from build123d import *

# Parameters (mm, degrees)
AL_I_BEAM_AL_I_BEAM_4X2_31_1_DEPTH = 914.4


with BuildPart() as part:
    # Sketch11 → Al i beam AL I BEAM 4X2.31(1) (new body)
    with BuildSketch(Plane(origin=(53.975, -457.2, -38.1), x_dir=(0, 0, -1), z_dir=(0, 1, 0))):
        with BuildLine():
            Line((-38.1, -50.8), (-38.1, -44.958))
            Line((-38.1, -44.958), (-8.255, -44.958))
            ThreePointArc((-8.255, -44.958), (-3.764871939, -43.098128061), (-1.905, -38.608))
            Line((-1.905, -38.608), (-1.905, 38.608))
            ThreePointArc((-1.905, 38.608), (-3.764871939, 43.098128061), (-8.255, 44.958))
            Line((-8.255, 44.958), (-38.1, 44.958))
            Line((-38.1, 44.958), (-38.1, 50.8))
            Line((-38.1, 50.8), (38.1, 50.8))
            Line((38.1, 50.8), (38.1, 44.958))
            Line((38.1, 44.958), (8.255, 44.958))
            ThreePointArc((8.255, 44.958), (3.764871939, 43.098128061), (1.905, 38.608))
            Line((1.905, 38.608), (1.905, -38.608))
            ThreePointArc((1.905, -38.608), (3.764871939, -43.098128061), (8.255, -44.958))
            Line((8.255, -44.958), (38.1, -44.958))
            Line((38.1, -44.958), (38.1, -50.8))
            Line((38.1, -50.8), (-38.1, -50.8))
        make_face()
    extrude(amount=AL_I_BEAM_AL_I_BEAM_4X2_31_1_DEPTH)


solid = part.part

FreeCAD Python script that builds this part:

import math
import FreeCAD as App
import Part
import Sketcher

V = App.Vector
Q = App.Units.Quantity

doc = App.newDocument("Part")
params = doc.addObject("Spreadsheet::Sheet", "Params")
for row, (alias, value) in enumerate([
    ("sketch1_height", "3 in"),
    ("sketch1_radius", "0.25 in"),
    ("sketch1_width", "0.23 in"),
    ("sketch1_width2", "3.04 in"),
    ("pad1_length", "36 in"),
], start=1):
    params.set(f"A{row}", alias)
    params.set(f"B{row}", "=" + value)
    params.setAlias(f"B{row}", alias)

body = doc.addObject("PartDesign::Body", "Body")

sketch1 = body.newObject("Sketcher::SketchObject", "Sketch")
sketch1.AttachmentSupport = (doc.getObject("XZ_Plane"), [""])
sketch1.MapMode = "FlatFace"
sketch1.AttachmentOffset = App.Placement(V(0, 0, 18 * 25.4), App.Rotation())
sketch1.addGeometry(Part.LineSegment(V(98.933, 0, 0), V(104.775, 0, 0)), False)
sketch1.addGeometry(Part.LineSegment(V(104.775, 0, 0), V(104.775, -76.2, 0)), False)
sketch1.addGeometry(Part.LineSegment(V(104.775, -76.2, 0), V(98.933, -76.2, 0)), False)
sketch1.addGeometry(Part.LineSegment(V(98.933, -76.2, 0), V(98.933, -46.355, 0)), False)
sketch1.addGeometry(Part.ArcOfCircle(Part.Circle(V(92.583, -46.355, 0), V(0, 0, 1), 6.35), math.radians(0), math.radians(90)), False)
sketch1.addGeometry(Part.LineSegment(V(92.583, -40.005, 0), V(15.367, -40.005, 0)), False)
sketch1.addGeometry(Part.ArcOfCircle(Part.Circle(V(15.367, -46.355, 0), V(0, 0, 1), 6.35), math.radians(90), math.radians(180)), False)
sketch1.addGeometry(Part.LineSegment(V(9.017, -46.355, 0), V(9.017, -76.2, 0)), False)
sketch1.addGeometry(Part.LineSegment(V(9.017, -76.2, 0), V(3.175, -76.2, 0)), False)
sketch1.addGeometry(Part.LineSegment(V(3.175, -76.2, 0), V(3.175, 0, 0)), False)
sketch1.addGeometry(Part.LineSegment(V(3.175, 0, 0), V(9.017, 0, 0)), False)
sketch1.addGeometry(Part.LineSegment(V(9.017, 0, 0), V(9.017, -29.845, 0)), False)
sketch1.addGeometry(Part.ArcOfCircle(Part.Circle(V(15.367, -29.845, 0), V(0, 0, 1), 6.35), math.radians(180), math.radians(270)), False)
sketch1.addGeometry(Part.LineSegment(V(15.367, -36.195, 0), V(92.583, -36.195, 0)), False)
sketch1.addGeometry(Part.ArcOfCircle(Part.Circle(V(92.583, -29.845, 0), V(0, 0, 1), 6.35), math.radians(-90), math.radians(0)), False)
sketch1.addGeometry(Part.LineSegment(V(98.933, -29.845, 0), V(98.933, 0, 0)), False)
sketch1.addConstraint(Sketcher.Constraint("Coincident", 0, 2, 1, 1))
sketch1.addConstraint(Sketcher.Constraint("Coincident", 1, 2, 2, 1))
sketch1.addConstraint(Sketcher.Constraint("Coincident", 2, 2, 3, 1))
sketch1.addConstraint(Sketcher.Constraint("Tangent", 3, 2, 4, 1))
sketch1.addConstraint(Sketcher.Constraint("Tangent", 4, 2, 5, 1))
sketch1.addConstraint(Sketcher.Constraint("Tangent", 5, 2, 6, 1))
sketch1.addConstraint(Sketcher.Constraint("Tangent", 6, 2, 7, 1))
sketch1.addConstraint(Sketcher.Constraint("Coincident", 7, 2, 8, 1))
sketch1.addConstraint(Sketcher.Constraint("Coincident", 8, 2, 9, 1))
sketch1.addConstraint(Sketcher.Constraint("Coincident", 9, 2, 10, 1))
sketch1.addConstraint(Sketcher.Constraint("Coincident", 10, 2, 11, 1))
sketch1.addConstraint(Sketcher.Constraint("Tangent", 11, 2, 12, 1))
sketch1.addConstraint(Sketcher.Constraint("Tangent", 12, 2, 13, 1))
sketch1.addConstraint(Sketcher.Constraint("Tangent", 13, 2, 14, 1))
sketch1.addConstraint(Sketcher.Constraint("Tangent", 14, 2, 15, 1))
sketch1.addConstraint(Sketcher.Constraint("Coincident", 15, 2, 0, 1))
sketch1.addConstraint(Sketcher.Constraint("Horizontal", 0))
sketch1.addConstraint(Sketcher.Constraint("Vertical", 1))
sketch1.addConstraint(Sketcher.Constraint("Horizontal", 2))
sketch1.addConstraint(Sketcher.Constraint("Vertical", 3))
sketch1.addConstraint(Sketcher.Constraint("Horizontal", 5))
sketch1.addConstraint(Sketcher.Constraint("Vertical", 7))
sketch1.addConstraint(Sketcher.Constraint("Horizontal", 8))
sketch1.addConstraint(Sketcher.Constraint("Vertical", 9))
sketch1.addConstraint(Sketcher.Constraint("Horizontal", 10))
sketch1.addConstraint(Sketcher.Constraint("Vertical", 11))
sketch1.addConstraint(Sketcher.Constraint("Horizontal", 13))
sketch1.addConstraint(Sketcher.Constraint("Vertical", 15))
sketch1.addConstraint(Sketcher.Constraint("Equal", 4, 6))
sketch1.addConstraint(Sketcher.Constraint("Equal", 6, 12))
sketch1.addConstraint(Sketcher.Constraint("Equal", 12, 14))
sketch1.addConstraint(Sketcher.Constraint("PointOnObject", 0, 2, -1))
sketch1.addConstraint(Sketcher.Constraint("PointOnObject", 9, 2, -1))
sketch1.addConstraint(Sketcher.Constraint("Horizontal", 2, 2, 7, 2))
sketch1.addConstraint(Sketcher.Constraint("Vertical", 6, 3, 12, 3))
sketch1.addConstraint(Sketcher.Constraint("Vertical", 4, 3, 14, 3))
sketch1.addConstraint(Sketcher.Constraint("Equal", 2, 8))
sketch1.addConstraint(Sketcher.Constraint("Equal", 7, 11))
sketch1.addConstraint(Sketcher.Constraint("DistanceY", 1, 2, 1, 1, Q("3 in")))
sketch1.addConstraint(Sketcher.Constraint("Radius", 4, Q("0.25 in")))
sketch1.addConstraint(Sketcher.Constraint("DistanceX", 0, 1, 0, 2, Q("0.23 in")))
sketch1.addConstraint(Sketcher.Constraint("DistanceX", 5, 2, 5, 1, Q("3.04 in")))
sketch1.addConstraint(Sketcher.Constraint("DistanceY", 4, 2, 14, 3, Q("0.4 in")))
sketch1.addConstraint(Sketcher.Constraint("DistanceX", -1, 1, 4, 3, Q("3.645 in")))
sketch1.setExpression("Constraints[38]", "Params.sketch1_height")
sketch1.setExpression("Constraints[39]", "Params.sketch1_radius")
sketch1.setExpression("Constraints[40]", "Params.sketch1_width")
sketch1.setExpression("Constraints[41]", "Params.sketch1_width2")
pad1 = body.newObject("PartDesign::Pad", "Pad")
pad1.Profile = sketch1
pad1.setExpression("Length", "Params.pad1_length")
pad1.Reversed = True

doc.recompute()
